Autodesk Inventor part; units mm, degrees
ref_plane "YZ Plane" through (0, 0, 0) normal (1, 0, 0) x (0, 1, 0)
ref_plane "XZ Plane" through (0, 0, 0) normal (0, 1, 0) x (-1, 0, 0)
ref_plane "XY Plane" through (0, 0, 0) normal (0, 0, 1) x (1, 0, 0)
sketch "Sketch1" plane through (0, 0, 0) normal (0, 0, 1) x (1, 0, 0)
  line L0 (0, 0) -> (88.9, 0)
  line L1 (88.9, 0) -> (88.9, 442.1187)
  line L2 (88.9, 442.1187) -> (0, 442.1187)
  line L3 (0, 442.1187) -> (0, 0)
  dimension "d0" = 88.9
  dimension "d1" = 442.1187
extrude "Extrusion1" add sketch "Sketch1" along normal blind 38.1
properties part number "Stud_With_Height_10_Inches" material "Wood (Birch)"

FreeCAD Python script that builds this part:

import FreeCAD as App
import Part
import Sketcher
Q = App.Units.Quantity

doc = App.newDocument("Part")
body = doc.addObject("PartDesign::Body", "Body")

sketch1 = body.newObject("Sketcher::SketchObject", "Sketch")
sketch1.AttachmentSupport = (doc.getObject("XY_Plane"), [""])
sketch1.MapMode = "FlatFace"
sketch1.addGeometry([
    Part.LineSegment(App.Vector(0, 442, 0), App.Vector(0, 0, 0)),
    Part.LineSegment(App.Vector(0, 0, 0), App.Vector(89, 0, 0)),
    Part.LineSegment(App.Vector(89, 0, 0), App.Vector(89, 442, 0)),
    Part.LineSegment(App.Vector(89, 442, 0), App.Vector(0, 442, 0)),
], False)
sketch1.addConstraint([
    Sketcher.Constraint("Coincident", 0, 2, 1, 1),
    Sketcher.Constraint("Coincident", 1, 2, 2, 1),
    Sketcher.Constraint("Coincident", 2, 2, 3, 1),
    Sketcher.Constraint("Coincident", 3, 2, 0, 1),
    Sketcher.Constraint("Vertical", 0),
    Sketcher.Constraint("Horizontal", 1),
    Sketcher.Constraint("Vertical", 2),
    Sketcher.Constraint("Horizontal", 3),
    Sketcher.Constraint("Coincident", 0, 2, -1, 1),
    Sketcher.Constraint("DistanceX", 1, 1, 1, 2, Q("3.5 in")),
    Sketcher.Constraint("DistanceY", 0, 2, 0, 1, Q("17.406248 in")),
])
pad1 = body.newObject("PartDesign::Pad", "Pad")
pad1.Profile = sketch1
pad1.Length = Q("1.5 in")

doc.recompute()
